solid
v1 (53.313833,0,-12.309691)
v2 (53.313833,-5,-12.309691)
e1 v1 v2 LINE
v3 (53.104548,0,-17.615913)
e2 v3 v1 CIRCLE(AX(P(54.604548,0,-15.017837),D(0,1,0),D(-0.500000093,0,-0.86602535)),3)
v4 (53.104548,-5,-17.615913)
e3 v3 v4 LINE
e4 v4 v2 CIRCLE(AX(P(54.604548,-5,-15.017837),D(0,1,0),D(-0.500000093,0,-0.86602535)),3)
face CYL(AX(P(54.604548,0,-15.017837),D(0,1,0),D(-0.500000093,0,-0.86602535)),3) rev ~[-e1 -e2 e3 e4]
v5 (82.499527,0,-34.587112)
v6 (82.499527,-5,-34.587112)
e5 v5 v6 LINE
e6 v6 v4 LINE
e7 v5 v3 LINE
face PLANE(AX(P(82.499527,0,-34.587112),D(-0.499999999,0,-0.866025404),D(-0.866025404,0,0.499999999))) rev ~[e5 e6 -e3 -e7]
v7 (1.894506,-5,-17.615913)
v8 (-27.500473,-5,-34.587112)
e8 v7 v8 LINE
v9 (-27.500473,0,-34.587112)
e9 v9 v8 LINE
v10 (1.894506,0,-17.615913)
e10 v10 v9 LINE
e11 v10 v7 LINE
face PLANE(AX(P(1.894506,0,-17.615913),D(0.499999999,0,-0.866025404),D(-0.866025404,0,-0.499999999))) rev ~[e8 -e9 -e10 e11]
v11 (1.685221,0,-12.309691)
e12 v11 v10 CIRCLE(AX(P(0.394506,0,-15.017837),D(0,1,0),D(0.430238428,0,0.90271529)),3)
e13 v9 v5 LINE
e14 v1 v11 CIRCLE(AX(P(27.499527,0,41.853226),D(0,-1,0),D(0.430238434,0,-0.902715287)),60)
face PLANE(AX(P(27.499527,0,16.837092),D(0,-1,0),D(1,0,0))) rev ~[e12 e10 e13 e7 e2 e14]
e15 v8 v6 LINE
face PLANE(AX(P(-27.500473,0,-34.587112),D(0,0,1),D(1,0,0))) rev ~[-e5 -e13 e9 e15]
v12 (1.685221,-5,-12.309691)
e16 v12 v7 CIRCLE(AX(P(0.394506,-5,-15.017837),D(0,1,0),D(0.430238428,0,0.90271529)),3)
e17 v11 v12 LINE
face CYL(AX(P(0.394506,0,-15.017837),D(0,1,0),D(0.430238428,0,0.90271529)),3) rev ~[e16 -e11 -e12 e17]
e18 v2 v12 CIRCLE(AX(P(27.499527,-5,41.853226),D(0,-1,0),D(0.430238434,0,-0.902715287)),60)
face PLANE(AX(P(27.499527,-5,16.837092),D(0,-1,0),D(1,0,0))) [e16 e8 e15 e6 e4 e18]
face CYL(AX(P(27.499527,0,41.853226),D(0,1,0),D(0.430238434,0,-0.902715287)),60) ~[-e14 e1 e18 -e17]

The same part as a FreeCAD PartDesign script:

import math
import FreeCAD as App
import Part
import Sketcher
Q = App.Units.Quantity

doc = App.newDocument("Part")
params = doc.addObject("Spreadsheet::Sheet", "Params")
for row, (alias, value) in enumerate([
    ("sketch1_radius", "3 mm"),
    ("sketch1_radius2", "60 mm"),
    ("sketch1_width", "110 mm"),
    ("pad1_length", "5 mm"),
], start=1):
    params.set(f"A{row}", alias)
    params.set(f"B{row}", "=" + value)
    params.setAlias(f"B{row}", alias)

body = doc.addObject("PartDesign::Body", "Body")

# Sketch on XZ plane
sketch1 = body.newObject("Sketcher::SketchObject", "Sketch")
sketch1.AttachmentSupport = (doc.getObject("XZ_Plane"), [""])
sketch1.MapMode = "FlatFace"
sketch1.addGeometry([
    Part.LineSegment(App.Vector(1.894506, -17.615913, 0), App.Vector(-27.500473, -34.587112, 0)),  # 0
    Part.LineSegment(App.Vector(-27.500473, -34.587112, 0), App.Vector(82.499527, -34.587112, 0)),  # 1
    Part.LineSegment(App.Vector(82.499527, -34.587112, 0), App.Vector(53.104548, -17.615913, 0)),  # 2
    Part.ArcOfCircle(Part.Circle(App.Vector(54.604548, -15.017837, 0), App.Vector(0, 0, 1), 3), math.radians(115.482692), math.radians(239.999994)),  # 3
    Part.ArcOfCircle(Part.Circle(App.Vector(27.499527, 41.853226, 0), App.Vector(0, 0, 1), 60), math.radians(-64.517307), math.radians(244.517307)),  # 4
    Part.ArcOfCircle(Part.Circle(App.Vector(0.394506, -15.017837, 0), App.Vector(0, 0, 1), 3), math.radians(-59.999994), math.radians(64.517308)),  # 5
], False)
sketch1.addConstraint([
    Sketcher.Constraint("Coincident", 0, 2, 1, 1),
    Sketcher.Constraint("Coincident", 1, 2, 2, 1),
    Sketcher.Constraint("Tangent", 2, 2, 3, 2),
    Sketcher.Constraint("Tangent", 3, 1, 4, 1),
    Sketcher.Constraint("Tangent", 4, 2, 5, 2),
    Sketcher.Constraint("Tangent", 5, 1, 0, 1),
    Sketcher.Constraint("Horizontal", 1),
    Sketcher.Constraint("Equal", 3, 5),
    Sketcher.Constraint("Horizontal", 3, 3, 5, 3),
    Sketcher.Constraint("Horizontal", 2, 2, 5, 1),
    Sketcher.Constraint("Radius", 3, 3.0),
    Sketcher.Constraint("Radius", 4, 60.0),
    Sketcher.Constraint("DistanceX", 1, 1, 1, 2, 110.0),
    Sketcher.Constraint("Angle", 0, Q("-150 deg")),
    Sketcher.Constraint("Distance", 0, 33.942398),
    Sketcher.Constraint("DistanceX", -1, 1, 3, 3, 54.604548),
    Sketcher.Constraint("DistanceY", 0, 2, -1, 1, 34.587112),
])
sketch1.setExpression("Constraints[10]", "Params.sketch1_radius")
sketch1.setExpression("Constraints[11]", "Params.sketch1_radius2")
sketch1.setExpression("Constraints[12]", "Params.sketch1_width")
pad1 = body.newObject("PartDesign::Pad", "Pad")
pad1.Profile = sketch1
pad1.setExpression("Length", "Params.pad1_length")

doc.recompute()
